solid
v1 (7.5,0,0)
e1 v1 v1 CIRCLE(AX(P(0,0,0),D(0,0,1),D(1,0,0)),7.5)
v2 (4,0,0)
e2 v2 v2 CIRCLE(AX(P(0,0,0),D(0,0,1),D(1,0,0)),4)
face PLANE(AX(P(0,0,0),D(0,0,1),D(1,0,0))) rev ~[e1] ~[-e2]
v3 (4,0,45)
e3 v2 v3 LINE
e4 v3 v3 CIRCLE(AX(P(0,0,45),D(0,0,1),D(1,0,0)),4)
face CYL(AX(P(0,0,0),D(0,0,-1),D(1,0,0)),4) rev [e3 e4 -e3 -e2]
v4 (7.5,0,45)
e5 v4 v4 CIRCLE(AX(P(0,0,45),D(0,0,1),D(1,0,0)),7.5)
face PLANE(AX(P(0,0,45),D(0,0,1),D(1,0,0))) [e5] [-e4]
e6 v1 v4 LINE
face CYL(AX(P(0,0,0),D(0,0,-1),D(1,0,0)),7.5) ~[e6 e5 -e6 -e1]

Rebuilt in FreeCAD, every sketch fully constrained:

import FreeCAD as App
import Part
import Sketcher
from FreeCAD import Vector

doc = App.newDocument("Part")
body = doc.addObject("PartDesign::Body", "Body")

sketch1 = body.newObject("Sketcher::SketchObject", "Sketch")
sketch1.AttachmentSupport = (doc.getObject("XY_Plane"), [""])
sketch1.MapMode = "FlatFace"
sketch1.addGeometry([
    Part.Circle(Vector(0, 0, 0), Vector(0, 0, 1), 7.5),
    Part.Circle(Vector(0, 0, 0), Vector(0, 0, 1), 4),
], False)
sketch1.addConstraint([
    Sketcher.Constraint("Coincident", 0, 3, -1, 1),
    Sketcher.Constraint("Coincident", 1, 3, -1, 1),
    Sketcher.Constraint("Diameter", 0, 15.0),
    Sketcher.Constraint("Diameter", 1, 8.0),
])
pad1 = body.newObject("PartDesign::Pad", "Pad")
pad1.Profile = sketch1
pad1.Length = 45

doc.recompute()
